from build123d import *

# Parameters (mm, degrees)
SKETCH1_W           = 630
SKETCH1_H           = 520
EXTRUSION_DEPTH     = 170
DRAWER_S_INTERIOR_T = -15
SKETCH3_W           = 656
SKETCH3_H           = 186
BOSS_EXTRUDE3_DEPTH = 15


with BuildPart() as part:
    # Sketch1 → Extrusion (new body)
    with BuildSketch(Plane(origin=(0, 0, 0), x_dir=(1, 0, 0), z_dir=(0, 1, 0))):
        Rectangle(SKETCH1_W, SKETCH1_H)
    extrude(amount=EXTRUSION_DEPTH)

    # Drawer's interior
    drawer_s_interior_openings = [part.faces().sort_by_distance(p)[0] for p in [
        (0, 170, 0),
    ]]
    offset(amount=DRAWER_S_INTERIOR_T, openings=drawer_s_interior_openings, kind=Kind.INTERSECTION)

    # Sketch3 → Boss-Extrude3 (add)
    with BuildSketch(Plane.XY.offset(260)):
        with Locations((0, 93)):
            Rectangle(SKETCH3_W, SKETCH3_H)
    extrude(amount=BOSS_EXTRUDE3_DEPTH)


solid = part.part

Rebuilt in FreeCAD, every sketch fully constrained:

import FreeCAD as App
import Part
import Sketcher
Q = App.Units.Quantity


def faces_at(feature, points):
    """Names of the faces that lie closest to the given points."""
    faces = feature.Shape.Faces
    near = lambda p: min(range(len(faces)), key=lambda i: faces[i].distToShape(Part.Vertex(*p))[0])
    return sorted({f"Face{near(p) + 1}" for p in points})


def add_polygon(sketch, points):
    """Adds a closed chain of lines whose ends are joined by coincident constraints."""
    first, n = sketch.GeometryCount, len(points)
    for a, b in zip(points, points[1:] + points[:1]):
        sketch.addGeometry(Part.LineSegment(App.Vector(*a, 0), App.Vector(*b, 0)), False)
    for i in range(n):
        sketch.addConstraint(Sketcher.Constraint("Coincident", first + i, 2, first + (i + 1) % n, 1))

doc = App.newDocument("Part")
params = doc.addObject("Spreadsheet::Sheet", "Params")
for row, (alias, value) in enumerate([
    ("sketch1_width", "630 mm"),
    ("sketch1_height", "520 mm"),
    ("pad1_length", "170 mm"),
    ("thickness_wall", "15 mm"),
    ("sketch2_width", "656 mm"),
    ("sketch2_height", "186 mm"),
    ("pad2_length", "15 mm"),
], start=1):
    params.set(f"A{row}", alias)
    params.set(f"B{row}", "=" + value)
    params.setAlias(f"B{row}", alias)

body = doc.addObject("PartDesign::Body", "Body")

sketch1 = body.newObject("Sketcher::SketchObject", "Sketch")
sketch1.AttachmentSupport = (doc.getObject("XZ_Plane"), [""])
sketch1.MapMode = "FlatFace"
add_polygon(sketch1, [(-315, -260), (-315, 260), (315, 260), (315, -260)])
sketch1.addConstraint(Sketcher.Constraint("Vertical", 0))
sketch1.addConstraint(Sketcher.Constraint("Horizontal", 1))
sketch1.addConstraint(Sketcher.Constraint("Vertical", 2))
sketch1.addConstraint(Sketcher.Constraint("Horizontal", 3))
sketch1.addConstraint(Sketcher.Constraint("Symmetric", 0, 2, 2, 2, -1, 1))
sketch1.addConstraint(Sketcher.Constraint("DistanceX", 1, 1, 1, 2, Q("630 mm")))
sketch1.addConstraint(Sketcher.Constraint("DistanceY", 0, 1, 0, 2, Q("520 mm")))
sketch1.setExpression("Constraints[9]", "Params.sketch1_width")
sketch1.setExpression("Constraints[10]", "Params.sketch1_height")
pad1 = body.newObject("PartDesign::Pad", "Pad")
pad1.Profile = sketch1
pad1.setExpression("Length", "Params.pad1_length")
pad1.Reversed = True
doc.recompute()

thickness = body.newObject("PartDesign::Thickness", "Thickness")
thickness.Base = (pad1, faces_at(pad1, [(0, 170, 0)]))
thickness.setExpression("Value", "Params.thickness_wall")
thickness.Reversed = True
thickness.Join = "Intersection"

sketch2 = body.newObject("Sketcher::SketchObject", "Sketch001")
sketch2.AttachmentSupport = (doc.getObject("XY_Plane"), [""])
sketch2.MapMode = "FlatFace"
sketch2.AttachmentOffset = App.Placement(App.Vector(0, 0, 260), App.Rotation())
add_polygon(sketch2, [(-328, 186), (-328, 0), (328, 0), (328, 186)])
sketch2.addConstraint(Sketcher.Constraint("Vertical", 0))
sketch2.addConstraint(Sketcher.Constraint("Horizontal", 1))
sketch2.addConstraint(Sketcher.Constraint("Vertical", 2))
sketch2.addConstraint(Sketcher.Constraint("Horizontal", 3))
sketch2.addConstraint(Sketcher.Constraint("Symmetric", 0, 2, 1, 2, -1, 1))
sketch2.addConstraint(Sketcher.Constraint("DistanceX", 1, 1, 1, 2, Q("656 mm")))
sketch2.addConstraint(Sketcher.Constraint("DistanceY", 0, 2, 0, 1, Q("186 mm")))
sketch2.setExpression("Constraints[9]", "Params.sketch2_width")
sketch2.setExpression("Constraints[10]", "Params.sketch2_height")
pad2 = body.newObject("PartDesign::Pad", "Pad001")
pad2.Profile = sketch2
pad2.setExpression("Length", "Params.pad2_length")

doc.recompute()
